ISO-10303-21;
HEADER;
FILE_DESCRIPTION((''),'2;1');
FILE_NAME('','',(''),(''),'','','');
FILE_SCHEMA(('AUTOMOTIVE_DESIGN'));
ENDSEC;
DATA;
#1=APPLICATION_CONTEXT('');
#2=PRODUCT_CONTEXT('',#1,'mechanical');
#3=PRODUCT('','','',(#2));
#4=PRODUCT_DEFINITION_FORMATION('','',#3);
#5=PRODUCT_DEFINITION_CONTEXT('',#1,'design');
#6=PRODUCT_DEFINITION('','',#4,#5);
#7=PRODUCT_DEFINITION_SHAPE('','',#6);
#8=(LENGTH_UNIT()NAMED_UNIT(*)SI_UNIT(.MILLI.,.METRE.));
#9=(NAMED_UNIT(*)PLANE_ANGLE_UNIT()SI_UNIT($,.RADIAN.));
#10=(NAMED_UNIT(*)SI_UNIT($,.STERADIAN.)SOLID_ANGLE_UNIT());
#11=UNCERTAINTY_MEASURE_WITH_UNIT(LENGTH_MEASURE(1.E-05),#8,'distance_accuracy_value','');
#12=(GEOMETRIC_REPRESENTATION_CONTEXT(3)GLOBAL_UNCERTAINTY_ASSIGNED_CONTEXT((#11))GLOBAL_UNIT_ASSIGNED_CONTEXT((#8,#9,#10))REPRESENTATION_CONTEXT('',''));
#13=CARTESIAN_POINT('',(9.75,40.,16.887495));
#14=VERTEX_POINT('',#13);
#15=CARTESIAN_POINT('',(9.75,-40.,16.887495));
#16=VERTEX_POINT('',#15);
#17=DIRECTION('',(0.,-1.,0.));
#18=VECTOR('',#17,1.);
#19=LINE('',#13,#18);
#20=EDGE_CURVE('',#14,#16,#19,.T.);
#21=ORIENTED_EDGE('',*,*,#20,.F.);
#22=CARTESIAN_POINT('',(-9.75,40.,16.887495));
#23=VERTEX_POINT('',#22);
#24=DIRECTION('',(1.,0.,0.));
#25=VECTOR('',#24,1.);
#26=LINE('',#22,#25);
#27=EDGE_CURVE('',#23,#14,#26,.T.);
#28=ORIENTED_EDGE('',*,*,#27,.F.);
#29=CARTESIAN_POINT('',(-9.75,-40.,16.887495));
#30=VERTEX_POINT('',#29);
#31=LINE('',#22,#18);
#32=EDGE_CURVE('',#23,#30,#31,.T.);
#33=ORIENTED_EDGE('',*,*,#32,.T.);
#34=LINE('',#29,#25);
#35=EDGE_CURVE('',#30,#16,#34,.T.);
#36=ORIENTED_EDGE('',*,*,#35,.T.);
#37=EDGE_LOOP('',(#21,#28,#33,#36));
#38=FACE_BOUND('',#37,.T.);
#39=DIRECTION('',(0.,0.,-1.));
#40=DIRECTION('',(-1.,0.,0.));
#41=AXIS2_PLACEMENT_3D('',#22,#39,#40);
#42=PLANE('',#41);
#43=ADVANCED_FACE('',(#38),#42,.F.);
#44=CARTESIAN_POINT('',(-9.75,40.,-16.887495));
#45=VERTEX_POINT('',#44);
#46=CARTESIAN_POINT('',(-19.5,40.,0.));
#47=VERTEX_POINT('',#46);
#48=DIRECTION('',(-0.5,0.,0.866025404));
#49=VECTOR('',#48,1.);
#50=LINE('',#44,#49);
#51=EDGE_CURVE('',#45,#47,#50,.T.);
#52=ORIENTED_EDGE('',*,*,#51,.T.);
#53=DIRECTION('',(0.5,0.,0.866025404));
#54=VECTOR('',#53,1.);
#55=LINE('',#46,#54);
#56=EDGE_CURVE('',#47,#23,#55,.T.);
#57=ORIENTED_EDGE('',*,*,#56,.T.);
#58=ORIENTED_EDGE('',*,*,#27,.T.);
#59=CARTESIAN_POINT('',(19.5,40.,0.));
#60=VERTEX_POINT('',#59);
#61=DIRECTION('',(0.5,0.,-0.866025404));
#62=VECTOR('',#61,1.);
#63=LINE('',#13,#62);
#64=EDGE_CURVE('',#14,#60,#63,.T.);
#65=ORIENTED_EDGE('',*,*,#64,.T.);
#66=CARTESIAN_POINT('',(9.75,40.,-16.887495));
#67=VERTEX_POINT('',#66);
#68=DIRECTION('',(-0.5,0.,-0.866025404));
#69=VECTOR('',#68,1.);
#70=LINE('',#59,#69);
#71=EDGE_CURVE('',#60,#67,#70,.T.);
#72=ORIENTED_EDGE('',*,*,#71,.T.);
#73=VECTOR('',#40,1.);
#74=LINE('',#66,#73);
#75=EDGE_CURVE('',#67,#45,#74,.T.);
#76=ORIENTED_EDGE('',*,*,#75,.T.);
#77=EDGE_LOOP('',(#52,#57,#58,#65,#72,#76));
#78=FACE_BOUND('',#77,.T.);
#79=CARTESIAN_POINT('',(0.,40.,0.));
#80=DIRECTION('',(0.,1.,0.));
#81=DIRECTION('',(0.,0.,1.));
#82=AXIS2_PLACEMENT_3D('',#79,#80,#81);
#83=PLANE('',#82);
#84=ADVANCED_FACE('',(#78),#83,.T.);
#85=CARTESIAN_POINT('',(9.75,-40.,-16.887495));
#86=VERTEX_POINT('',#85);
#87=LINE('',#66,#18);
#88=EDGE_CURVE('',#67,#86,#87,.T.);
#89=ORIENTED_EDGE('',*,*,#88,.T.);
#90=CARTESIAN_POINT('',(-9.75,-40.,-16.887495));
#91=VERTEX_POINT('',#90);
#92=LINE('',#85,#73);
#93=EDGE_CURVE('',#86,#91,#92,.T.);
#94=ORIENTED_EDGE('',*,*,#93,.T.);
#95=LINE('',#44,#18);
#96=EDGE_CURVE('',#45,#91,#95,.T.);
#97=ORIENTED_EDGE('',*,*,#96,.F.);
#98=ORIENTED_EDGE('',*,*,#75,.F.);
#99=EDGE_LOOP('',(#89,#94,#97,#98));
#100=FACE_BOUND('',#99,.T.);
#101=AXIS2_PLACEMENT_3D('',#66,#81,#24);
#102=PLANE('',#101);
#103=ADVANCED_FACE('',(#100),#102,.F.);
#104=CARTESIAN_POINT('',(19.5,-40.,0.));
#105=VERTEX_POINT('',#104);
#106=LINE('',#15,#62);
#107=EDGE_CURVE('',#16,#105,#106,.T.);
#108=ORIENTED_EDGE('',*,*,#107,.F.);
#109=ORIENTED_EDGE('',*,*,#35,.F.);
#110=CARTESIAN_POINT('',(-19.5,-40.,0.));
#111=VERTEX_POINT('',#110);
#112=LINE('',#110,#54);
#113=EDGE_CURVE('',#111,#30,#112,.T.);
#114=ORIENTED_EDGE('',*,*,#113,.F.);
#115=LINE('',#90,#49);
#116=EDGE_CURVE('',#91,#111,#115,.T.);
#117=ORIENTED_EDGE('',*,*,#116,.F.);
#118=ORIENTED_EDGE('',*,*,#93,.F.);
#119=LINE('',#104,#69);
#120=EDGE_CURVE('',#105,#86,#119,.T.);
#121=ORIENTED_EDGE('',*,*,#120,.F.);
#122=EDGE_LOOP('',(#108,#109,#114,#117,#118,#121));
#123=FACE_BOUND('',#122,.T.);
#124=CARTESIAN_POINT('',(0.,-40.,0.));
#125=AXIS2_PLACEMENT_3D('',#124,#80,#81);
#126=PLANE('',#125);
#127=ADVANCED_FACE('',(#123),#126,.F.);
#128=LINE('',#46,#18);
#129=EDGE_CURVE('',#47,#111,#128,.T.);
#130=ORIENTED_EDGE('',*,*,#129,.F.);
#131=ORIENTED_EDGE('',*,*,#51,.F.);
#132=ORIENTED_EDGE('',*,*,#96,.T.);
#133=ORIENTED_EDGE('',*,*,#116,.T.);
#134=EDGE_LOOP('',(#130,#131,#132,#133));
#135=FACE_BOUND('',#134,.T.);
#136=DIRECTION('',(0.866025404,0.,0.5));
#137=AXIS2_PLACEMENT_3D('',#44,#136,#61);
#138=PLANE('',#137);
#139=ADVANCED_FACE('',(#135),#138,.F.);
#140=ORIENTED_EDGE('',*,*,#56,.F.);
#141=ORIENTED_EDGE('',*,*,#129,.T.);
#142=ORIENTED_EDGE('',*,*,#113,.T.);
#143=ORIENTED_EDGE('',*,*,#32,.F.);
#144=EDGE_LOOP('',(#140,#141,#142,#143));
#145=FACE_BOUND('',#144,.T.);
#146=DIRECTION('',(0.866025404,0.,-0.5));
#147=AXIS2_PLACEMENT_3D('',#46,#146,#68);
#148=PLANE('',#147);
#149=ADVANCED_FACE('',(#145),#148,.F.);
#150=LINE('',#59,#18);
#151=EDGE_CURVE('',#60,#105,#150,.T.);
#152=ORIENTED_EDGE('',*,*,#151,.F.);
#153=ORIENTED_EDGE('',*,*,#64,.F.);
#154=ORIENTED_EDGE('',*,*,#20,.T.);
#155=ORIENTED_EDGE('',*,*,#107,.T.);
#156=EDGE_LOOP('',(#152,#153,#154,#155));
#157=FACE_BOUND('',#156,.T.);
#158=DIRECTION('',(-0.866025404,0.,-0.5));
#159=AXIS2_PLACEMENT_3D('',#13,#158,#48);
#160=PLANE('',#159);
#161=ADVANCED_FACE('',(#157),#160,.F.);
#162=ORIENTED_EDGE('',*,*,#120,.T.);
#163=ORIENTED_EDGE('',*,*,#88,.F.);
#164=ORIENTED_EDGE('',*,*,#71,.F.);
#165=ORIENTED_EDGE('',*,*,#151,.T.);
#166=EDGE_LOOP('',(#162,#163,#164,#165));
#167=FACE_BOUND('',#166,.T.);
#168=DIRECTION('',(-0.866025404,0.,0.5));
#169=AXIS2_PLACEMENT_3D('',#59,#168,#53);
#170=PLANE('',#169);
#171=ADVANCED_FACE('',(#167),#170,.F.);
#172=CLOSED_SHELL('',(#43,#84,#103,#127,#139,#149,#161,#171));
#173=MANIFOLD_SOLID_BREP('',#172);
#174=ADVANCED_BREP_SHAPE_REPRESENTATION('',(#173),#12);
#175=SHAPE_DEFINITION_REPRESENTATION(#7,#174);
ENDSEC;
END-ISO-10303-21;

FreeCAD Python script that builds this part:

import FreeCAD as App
import Part
import Sketcher
Q = App.Units.Quantity


def add_polygon(sketch, points):
    """Adds a closed chain of lines whose ends are joined by coincident constraints."""
    first, n = sketch.GeometryCount, len(points)
    for a, b in zip(points, points[1:] + points[:1]):
        sketch.addGeometry(Part.LineSegment(App.Vector(*a, 0), App.Vector(*b, 0)), False)
    for i in range(n):
        sketch.addConstraint(Sketcher.Constraint("Coincident", first + i, 2, first + (i + 1) % n, 1))

doc = App.newDocument("Part")
params = doc.addObject("Spreadsheet::Sheet", "Params")
for row, (alias, value) in enumerate([
    ("sketch1_width", "19.5 mm"),
    ("pad1_length", "80 mm"),
], start=1):
    params.set(f"A{row}", alias)
    params.set(f"B{row}", "=" + value)
    params.setAlias(f"B{row}", alias)

body = doc.addObject("PartDesign::Body", "Body")

sketch1 = body.newObject("Sketcher::SketchObject", "Sketch")
sketch1.AttachmentSupport = (doc.getObject("XZ_Plane"), [""])
sketch1.MapMode = "FlatFace"
add_polygon(sketch1, [(20, 0), (10, -17), (-10, -17), (-20, 0), (-10, 17), (10, 17)])
sketch1.addConstraint([
    Sketcher.Constraint("Horizontal", 1),
    Sketcher.Constraint("Horizontal", 4),
    Sketcher.Constraint("Symmetric", 0, 2, 3, 2, -1, 1),
    Sketcher.Constraint("Symmetric", 2, 2, 5, 2, -1, 1),
    Sketcher.Constraint("PointOnObject", 2, 2, -1),
    Sketcher.Constraint("Parallel", 2, 5),
    Sketcher.Constraint("Vertical", 1, 2, 3, 2),
    Sketcher.Constraint("Angle", 0, Q("-120 deg")),
    Sketcher.Constraint("DistanceX", 1, 2, 1, 1, Q("19.5 mm")),
    Sketcher.Constraint("DistanceX", 2, 2, 5, 2, Q("39 mm")),
])
sketch1.setExpression("Constraints[14]", "Params.sketch1_width")
pad1 = body.newObject("PartDesign::Pad", "Pad")
pad1.Profile = sketch1
pad1.setExpression("Length", "Params.pad1_length")
pad1.Midplane = True

doc.recompute()
